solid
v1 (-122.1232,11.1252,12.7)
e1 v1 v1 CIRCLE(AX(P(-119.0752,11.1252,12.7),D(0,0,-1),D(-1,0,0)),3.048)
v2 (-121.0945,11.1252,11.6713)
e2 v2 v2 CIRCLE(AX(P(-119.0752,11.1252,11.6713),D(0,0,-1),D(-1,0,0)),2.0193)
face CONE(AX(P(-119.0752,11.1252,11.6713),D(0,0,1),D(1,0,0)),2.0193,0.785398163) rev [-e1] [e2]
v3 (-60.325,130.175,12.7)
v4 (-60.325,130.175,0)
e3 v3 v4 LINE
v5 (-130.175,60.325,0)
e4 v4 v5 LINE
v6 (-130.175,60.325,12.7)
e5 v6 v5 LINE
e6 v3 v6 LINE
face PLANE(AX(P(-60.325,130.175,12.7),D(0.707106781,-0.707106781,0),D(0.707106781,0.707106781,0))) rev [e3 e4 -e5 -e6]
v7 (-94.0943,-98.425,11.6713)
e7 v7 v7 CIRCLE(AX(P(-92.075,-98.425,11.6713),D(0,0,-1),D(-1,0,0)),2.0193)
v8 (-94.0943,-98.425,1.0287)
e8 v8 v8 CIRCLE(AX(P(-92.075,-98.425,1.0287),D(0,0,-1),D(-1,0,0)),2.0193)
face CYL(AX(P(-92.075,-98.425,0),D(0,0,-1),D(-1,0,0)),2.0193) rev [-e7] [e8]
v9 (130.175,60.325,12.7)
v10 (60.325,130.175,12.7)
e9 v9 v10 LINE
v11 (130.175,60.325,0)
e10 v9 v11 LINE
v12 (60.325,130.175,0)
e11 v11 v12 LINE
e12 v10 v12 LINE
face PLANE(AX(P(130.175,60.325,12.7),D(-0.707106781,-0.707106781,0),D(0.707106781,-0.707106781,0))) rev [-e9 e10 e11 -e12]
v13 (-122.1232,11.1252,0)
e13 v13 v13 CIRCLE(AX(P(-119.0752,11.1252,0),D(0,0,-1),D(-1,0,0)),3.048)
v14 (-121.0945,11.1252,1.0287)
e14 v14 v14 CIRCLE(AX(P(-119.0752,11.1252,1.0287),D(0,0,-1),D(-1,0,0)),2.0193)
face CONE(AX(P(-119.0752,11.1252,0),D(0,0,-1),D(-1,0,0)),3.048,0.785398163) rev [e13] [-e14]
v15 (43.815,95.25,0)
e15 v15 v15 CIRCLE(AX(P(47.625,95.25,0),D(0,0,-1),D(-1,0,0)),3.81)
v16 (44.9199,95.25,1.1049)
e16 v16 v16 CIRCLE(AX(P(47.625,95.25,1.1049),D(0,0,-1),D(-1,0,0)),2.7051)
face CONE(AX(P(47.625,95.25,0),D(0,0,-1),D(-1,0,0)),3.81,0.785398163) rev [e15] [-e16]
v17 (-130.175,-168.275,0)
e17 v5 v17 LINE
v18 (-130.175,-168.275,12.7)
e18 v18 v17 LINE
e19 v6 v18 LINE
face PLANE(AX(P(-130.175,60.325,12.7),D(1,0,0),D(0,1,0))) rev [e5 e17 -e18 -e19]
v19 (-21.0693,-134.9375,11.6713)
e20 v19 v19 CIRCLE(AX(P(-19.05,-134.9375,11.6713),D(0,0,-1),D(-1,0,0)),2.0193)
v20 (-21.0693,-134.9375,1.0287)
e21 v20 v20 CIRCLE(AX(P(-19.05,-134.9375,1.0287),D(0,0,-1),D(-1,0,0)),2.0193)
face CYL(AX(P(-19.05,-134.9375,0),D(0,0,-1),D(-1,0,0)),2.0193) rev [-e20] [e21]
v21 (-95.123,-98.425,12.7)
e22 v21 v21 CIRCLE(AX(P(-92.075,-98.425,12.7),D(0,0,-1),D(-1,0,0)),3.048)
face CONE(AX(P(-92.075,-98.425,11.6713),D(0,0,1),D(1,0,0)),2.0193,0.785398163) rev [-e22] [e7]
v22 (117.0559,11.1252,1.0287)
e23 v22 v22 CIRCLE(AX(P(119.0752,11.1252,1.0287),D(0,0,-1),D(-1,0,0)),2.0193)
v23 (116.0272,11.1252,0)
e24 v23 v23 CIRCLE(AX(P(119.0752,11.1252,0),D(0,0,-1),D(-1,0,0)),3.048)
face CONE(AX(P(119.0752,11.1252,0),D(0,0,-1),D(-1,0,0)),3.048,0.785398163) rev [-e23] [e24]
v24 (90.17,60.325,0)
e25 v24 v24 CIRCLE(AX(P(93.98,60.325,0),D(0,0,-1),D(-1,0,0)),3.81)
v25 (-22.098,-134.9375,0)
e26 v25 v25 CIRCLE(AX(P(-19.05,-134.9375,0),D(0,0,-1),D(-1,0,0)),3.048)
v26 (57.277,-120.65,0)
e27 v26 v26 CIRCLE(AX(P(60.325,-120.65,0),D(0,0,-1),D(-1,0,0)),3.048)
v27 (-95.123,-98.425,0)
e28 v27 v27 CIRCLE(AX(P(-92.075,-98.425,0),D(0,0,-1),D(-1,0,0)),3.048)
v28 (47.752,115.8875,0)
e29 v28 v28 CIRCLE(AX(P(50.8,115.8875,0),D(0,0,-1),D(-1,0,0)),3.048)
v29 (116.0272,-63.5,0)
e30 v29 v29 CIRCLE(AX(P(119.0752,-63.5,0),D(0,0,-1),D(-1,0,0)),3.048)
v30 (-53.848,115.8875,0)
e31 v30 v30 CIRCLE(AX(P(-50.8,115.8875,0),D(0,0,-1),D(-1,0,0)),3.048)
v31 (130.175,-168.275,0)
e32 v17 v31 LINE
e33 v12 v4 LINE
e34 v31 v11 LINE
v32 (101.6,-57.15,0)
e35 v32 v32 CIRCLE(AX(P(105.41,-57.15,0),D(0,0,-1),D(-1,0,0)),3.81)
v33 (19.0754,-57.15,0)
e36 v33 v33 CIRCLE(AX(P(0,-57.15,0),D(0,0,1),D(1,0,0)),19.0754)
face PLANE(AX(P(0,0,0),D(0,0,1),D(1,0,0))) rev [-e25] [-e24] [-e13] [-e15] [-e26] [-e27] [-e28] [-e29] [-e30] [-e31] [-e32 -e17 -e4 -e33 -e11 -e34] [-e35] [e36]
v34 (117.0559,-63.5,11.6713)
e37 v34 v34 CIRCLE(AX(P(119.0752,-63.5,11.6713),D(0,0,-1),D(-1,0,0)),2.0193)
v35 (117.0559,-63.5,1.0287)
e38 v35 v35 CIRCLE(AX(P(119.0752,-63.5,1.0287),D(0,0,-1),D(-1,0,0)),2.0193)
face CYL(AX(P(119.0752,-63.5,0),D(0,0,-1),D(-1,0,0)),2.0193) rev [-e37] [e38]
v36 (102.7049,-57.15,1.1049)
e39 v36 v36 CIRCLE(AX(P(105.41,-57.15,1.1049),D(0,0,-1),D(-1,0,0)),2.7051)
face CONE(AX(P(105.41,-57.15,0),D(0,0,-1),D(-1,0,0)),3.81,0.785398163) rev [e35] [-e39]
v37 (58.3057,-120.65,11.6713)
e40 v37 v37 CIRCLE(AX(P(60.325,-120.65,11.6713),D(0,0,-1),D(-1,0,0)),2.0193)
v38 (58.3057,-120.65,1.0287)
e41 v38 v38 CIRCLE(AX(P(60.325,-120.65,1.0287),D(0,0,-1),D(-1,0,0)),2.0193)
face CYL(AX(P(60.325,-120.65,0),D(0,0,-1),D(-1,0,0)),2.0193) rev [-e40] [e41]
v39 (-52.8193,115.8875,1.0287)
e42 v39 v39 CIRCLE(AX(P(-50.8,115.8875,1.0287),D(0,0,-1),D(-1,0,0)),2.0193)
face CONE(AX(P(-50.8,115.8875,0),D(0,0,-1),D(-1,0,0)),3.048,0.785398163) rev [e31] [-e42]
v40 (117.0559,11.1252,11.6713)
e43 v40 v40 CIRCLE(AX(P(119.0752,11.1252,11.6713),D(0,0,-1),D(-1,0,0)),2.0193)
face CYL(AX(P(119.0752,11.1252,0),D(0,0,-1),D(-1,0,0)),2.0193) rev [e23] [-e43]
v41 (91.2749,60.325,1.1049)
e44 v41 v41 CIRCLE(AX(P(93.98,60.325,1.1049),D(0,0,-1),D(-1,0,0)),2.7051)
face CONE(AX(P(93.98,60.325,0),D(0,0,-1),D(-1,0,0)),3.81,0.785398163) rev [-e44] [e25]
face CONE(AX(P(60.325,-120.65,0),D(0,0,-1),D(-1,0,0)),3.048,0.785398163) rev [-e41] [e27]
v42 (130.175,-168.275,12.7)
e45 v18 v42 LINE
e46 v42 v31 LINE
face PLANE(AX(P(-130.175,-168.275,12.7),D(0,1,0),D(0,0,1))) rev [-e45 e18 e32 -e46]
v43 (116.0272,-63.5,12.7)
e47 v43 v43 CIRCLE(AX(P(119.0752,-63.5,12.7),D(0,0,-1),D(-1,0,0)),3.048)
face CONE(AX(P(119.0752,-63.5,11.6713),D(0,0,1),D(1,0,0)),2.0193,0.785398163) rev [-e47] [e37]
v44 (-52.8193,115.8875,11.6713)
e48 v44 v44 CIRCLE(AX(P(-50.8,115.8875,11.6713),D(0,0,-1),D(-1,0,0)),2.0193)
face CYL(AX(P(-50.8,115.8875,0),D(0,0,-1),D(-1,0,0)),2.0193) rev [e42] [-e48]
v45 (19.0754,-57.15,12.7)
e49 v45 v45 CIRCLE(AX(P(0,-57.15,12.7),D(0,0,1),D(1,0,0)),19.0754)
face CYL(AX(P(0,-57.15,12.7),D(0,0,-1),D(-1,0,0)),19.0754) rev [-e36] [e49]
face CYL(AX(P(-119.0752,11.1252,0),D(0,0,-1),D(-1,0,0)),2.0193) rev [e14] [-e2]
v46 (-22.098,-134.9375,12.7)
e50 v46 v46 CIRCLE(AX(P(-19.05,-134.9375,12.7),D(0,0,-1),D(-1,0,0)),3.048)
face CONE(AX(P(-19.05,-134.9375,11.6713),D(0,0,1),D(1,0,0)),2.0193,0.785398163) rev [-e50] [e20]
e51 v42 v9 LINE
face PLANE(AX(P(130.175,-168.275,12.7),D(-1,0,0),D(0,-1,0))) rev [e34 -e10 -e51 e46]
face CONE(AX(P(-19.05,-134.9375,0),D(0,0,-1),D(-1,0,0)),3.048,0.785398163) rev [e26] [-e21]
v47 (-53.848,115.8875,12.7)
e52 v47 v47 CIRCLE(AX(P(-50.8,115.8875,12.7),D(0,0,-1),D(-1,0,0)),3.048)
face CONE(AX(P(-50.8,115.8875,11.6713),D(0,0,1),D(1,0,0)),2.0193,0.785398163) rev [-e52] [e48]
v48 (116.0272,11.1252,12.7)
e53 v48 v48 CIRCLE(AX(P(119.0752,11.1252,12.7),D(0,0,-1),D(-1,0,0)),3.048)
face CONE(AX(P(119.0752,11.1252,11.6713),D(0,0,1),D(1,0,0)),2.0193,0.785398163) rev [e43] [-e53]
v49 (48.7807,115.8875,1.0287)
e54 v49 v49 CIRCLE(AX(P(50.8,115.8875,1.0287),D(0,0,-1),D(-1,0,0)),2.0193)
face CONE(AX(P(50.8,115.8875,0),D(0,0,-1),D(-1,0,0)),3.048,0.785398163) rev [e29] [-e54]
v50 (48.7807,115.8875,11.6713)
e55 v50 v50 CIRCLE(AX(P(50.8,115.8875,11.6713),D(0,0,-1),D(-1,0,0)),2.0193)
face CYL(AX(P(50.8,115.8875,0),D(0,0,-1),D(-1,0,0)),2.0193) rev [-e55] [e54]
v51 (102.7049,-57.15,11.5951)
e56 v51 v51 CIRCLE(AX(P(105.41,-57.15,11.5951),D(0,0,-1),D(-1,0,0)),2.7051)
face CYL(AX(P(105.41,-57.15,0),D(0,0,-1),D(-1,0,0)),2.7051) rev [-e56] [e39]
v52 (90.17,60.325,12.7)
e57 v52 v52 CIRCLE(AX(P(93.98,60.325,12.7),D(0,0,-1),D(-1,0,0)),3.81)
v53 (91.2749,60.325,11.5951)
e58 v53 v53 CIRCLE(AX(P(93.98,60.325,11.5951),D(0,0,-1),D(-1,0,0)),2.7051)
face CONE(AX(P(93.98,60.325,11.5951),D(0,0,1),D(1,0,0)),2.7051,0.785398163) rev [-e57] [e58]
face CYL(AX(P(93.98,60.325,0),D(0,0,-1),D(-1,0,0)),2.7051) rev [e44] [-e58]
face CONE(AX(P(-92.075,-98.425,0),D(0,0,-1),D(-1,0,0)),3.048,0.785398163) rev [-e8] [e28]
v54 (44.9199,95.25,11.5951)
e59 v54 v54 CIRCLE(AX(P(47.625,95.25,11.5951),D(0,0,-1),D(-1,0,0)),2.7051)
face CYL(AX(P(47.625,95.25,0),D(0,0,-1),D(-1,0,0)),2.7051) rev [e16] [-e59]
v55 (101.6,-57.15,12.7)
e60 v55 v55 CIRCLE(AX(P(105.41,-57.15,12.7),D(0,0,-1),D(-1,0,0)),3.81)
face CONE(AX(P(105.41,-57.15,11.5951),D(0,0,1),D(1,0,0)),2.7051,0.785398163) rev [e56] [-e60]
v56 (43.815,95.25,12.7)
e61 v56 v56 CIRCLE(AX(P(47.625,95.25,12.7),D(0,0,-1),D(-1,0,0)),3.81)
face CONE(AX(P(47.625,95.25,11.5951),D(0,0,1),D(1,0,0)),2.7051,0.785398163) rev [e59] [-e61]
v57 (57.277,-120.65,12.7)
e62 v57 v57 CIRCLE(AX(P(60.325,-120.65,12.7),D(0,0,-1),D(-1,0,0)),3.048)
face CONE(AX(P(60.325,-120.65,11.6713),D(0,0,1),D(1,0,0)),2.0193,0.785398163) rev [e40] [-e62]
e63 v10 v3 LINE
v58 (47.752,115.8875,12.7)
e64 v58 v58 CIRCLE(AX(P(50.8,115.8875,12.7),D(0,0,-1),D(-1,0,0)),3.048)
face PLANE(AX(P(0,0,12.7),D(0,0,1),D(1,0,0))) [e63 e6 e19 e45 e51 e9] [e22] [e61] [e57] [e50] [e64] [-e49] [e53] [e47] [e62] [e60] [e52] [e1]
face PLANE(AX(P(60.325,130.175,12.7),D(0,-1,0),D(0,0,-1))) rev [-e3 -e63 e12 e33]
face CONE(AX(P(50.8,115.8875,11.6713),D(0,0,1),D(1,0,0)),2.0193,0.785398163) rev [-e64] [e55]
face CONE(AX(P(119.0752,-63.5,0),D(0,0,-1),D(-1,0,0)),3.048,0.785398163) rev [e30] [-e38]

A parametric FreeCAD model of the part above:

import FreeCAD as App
import Part
import Sketcher

V = App.Vector
Q = App.Units.Quantity


def add_polygon(sketch, points):
    """Adds a closed chain of lines whose ends are joined by coincident constraints."""
    first, n = sketch.GeometryCount, len(points)
    for a, b in zip(points, points[1:] + points[:1]):
        sketch.addGeometry(Part.LineSegment(App.Vector(*a, 0), App.Vector(*b, 0)), False)
    for i in range(n):
        sketch.addConstraint(Sketcher.Constraint("Coincident", first + i, 2, first + (i + 1) % n, 1))

doc = App.newDocument("Part")
params = doc.addObject("Spreadsheet::Sheet", "Params")
for row, (alias, value) in enumerate([
    ("sketch1_height", "9 in"),
    ("sketch1_width", "10.25 in"),
    ("sketch1_width2", "4.75 in"),
    ("pad1_length", "0.5 in"),
    ("sketch2_diameter", "1.502 in"),
    ("sketch3_height", "0.5 in"),
    ("sketch3_width", "0.12 in"),
    ("sketch3_height2", "0.419 in"),
    ("groove_angle", "360 deg"),
    ("linearpattern_pitch", "4 in"),
    ("linearpattern2_pitch", "199.58137 mm"),
    ("linearpattern3_pitch", "257.571569 mm"),
    ("linearpattern4_pitch", "260.369359 mm"),
    ("linearpattern5_pitch", "236.729201 mm"),
    ("linearpattern6_pitch", "125.046561 mm"),
    ("linearpattern7_pitch", "191.94108 mm"),
    ("sketch4_height", "0.5 in"),
    ("sketch4_width", "0.15 in"),
    ("sketch4_height2", "0.413 in"),
    ("groove2_angle", "360 deg"),
    ("linearpattern8_pitch", "118.029744 mm"),
    ("linearpattern9_pitch", "162.987319 mm"),
], start=1):
    params.set(f"A{row}", alias)
    params.set(f"B{row}", "=" + value)
    params.setAlias(f"B{row}", alias)

body = doc.addObject("PartDesign::Body", "Body")

sketch1 = body.newObject("Sketcher::SketchObject", "Sketch")
sketch1.AttachmentSupport = (doc.getObject("XY_Plane"), [""])
sketch1.MapMode = "FlatFace"
add_polygon(sketch1, [(-130.175, -168.275), (130.175, -168.275), (130.175, 60.325), (60.325, 130.175), (-60.325, 130.175), (-130.175, 60.325)])
sketch1.addConstraint([
    Sketcher.Constraint("Horizontal", 0),
    Sketcher.Constraint("Vertical", 1),
    Sketcher.Constraint("Horizontal", 3),
    Sketcher.Constraint("Vertical", 5),
    Sketcher.Constraint("Symmetric", 1, 2, 4, 2, -2),
    Sketcher.Constraint("Perpendicular", 2, 4),
    Sketcher.Constraint("Equal", 2, 4),
    Sketcher.Constraint("DistanceY", 1, 1, 1, 2, Q("9 in")),
    Sketcher.Constraint("DistanceX", 0, 1, 0, 2, Q("10.25 in")),
    Sketcher.Constraint("DistanceX", 3, 2, 3, 1, Q("4.75 in")),
    Sketcher.Constraint("DistanceY", 0, 2, -1, 1, Q("6.625 in")),
])
sketch1.setExpression("Constraints[13]", "Params.sketch1_height")
sketch1.setExpression("Constraints[14]", "Params.sketch1_width")
sketch1.setExpression("Constraints[15]", "Params.sketch1_width2")
pad1 = body.newObject("PartDesign::Pad", "Pad")
pad1.Profile = sketch1
pad1.setExpression("Length", "Params.pad1_length")

sketch2 = body.newObject("Sketcher::SketchObject", "Sketch001")
sketch2.AttachmentSupport = (doc.getObject("XY_Plane"), [""])
sketch2.MapMode = "FlatFace"
sketch2.addGeometry(Part.Circle(V(0, -57.15, 0), V(0, 0, 1), 19.0754), False)
sketch2.addConstraint([
    Sketcher.Constraint("PointOnObject", 0, 3, -2),
    Sketcher.Constraint("Diameter", 0, Q("1.502 in")),
    Sketcher.Constraint("DistanceY", 0, 3, -1, 1, Q("2.25 in")),
])
sketch2.setExpression("Constraints[1]", "Params.sketch2_diameter")
pocket1 = body.newObject("PartDesign::Pocket", "Pocket")
pocket1.Profile = sketch2
pocket1.Type = "ThroughAll"
pocket1.Reversed = True

sketch3 = body.newObject("Sketcher::SketchObject", "Sketch002")
sketch3.AttachmentSupport = (doc.getObject("YZ_Plane"), [""])
sketch3.MapMode = "FlatFace"
sketch3.AttachmentOffset = App.Placement(V(0, 0, 2 * 25.4), App.Rotation())
add_polygon(sketch3, [(115.8875, 12.7), (115.8875, 0), (118.9355, 0), (117.9068, 1.0287), (117.9068, 11.6713), (118.9355, 12.7)])
sketch3.addGeometry(Part.LineSegment(V(115.8875, 0, 0), V(115.8875, 12.7, 0)), True)
sketch3.addConstraint([
    Sketcher.Constraint("Vertical", 0),
    Sketcher.Constraint("Horizontal", 1),
    Sketcher.Constraint("Vertical", 3),
    Sketcher.Constraint("Horizontal", 5),
    Sketcher.Constraint("Vertical", 6),
    Sketcher.Constraint("Coincident", 6, 1, 0, 2),
    Sketcher.Constraint("PointOnObject", 0, 2, -1),
    Sketcher.Constraint("Perpendicular", 2, 4),
    Sketcher.Constraint("Horizontal", 4, 2, 6, 2),
    Sketcher.Constraint("Vertical", 1, 2, 4, 2),
    Sketcher.Constraint("Equal", 2, 4),
    Sketcher.Constraint("DistanceY", 0, 2, 0, 1, Q("0.5 in")),
    Sketcher.Constraint("DistanceX", 1, 1, 1, 2, Q("0.12 in")),
    Sketcher.Constraint("DistanceY", 3, 1, 3, 2, Q("0.419 in")),
    Sketcher.Constraint("DistanceX", -1, 1, 0, 2, Q("4.5625 in")),
])
sketch3.setExpression("Constraints[17]", "Params.sketch3_height")
sketch3.setExpression("Constraints[18]", "Params.sketch3_width")
sketch3.setExpression("Constraints[19]", "Params.sketch3_height2")
groove = body.newObject("PartDesign::Groove", "Groove")
groove.Profile = sketch3
groove.ReferenceAxis = (sketch3, ["Axis0"])
groove.setExpression("Angle", "Params.groove_angle")
doc.recompute()

linearpattern = body.newObject("PartDesign::LinearPattern", "LinearPattern")
linearpattern.Originals = [groove]
linearpattern.Direction = (doc.getObject("X_Axis"), [""])
linearpattern.Mode = "offset"
linearpattern.setExpression("Offset", "Params.linearpattern_pitch")
linearpattern.Occurrences = 2
linearpattern.Reversed = True
body.Tip = linearpattern
doc.recompute()

datumline = body.newObject("PartDesign::Line", "DatumLine")
datumline.Placement = App.Placement(V(0, 0, 0), App.Rotation(V(0, 0, 1), V(-0.851157602, -0.524910217, 0)))
linearpattern2 = body.newObject("PartDesign::LinearPattern", "LinearPattern001")
linearpattern2.Originals = [groove]
linearpattern2.Direction = (datumline, [""])
linearpattern2.Mode = "offset"
linearpattern2.setExpression("Offset", "Params.linearpattern2_pitch")
linearpattern2.Occurrences = 2
body.Tip = linearpattern2
doc.recompute()

datumline2 = body.newObject("PartDesign::Line", "DatumLine001")
datumline2.Placement = App.Placement(V(0, 0, 0), App.Rotation(V(0, 0, 1), V(-0.554700196, -0.832050294, 0)))
linearpattern3 = body.newObject("PartDesign::LinearPattern", "LinearPattern002")
linearpattern3.Originals = [groove]
linearpattern3.Direction = (datumline2, [""])
linearpattern3.Mode = "offset"
linearpattern3.setExpression("Offset", "Params.linearpattern3_pitch")
linearpattern3.Occurrences = 2
body.Tip = linearpattern3
doc.recompute()

datumline3 = body.newObject("PartDesign::Line", "DatumLine002")
datumline3.Placement = App.Placement(V(0, 0, 0), App.Rotation(V(0, 0, 1), V(-0.268272735, -0.963343002, 0)))
linearpattern4 = body.newObject("PartDesign::LinearPattern", "LinearPattern003")
linearpattern4.Originals = [groove]
linearpattern4.Direction = (datumline3, [""])
linearpattern4.Mode = "offset"
linearpattern4.setExpression("Offset", "Params.linearpattern4_pitch")
linearpattern4.Occurrences = 2
body.Tip = linearpattern4
doc.recompute()

datumline4 = body.newObject("PartDesign::Line", "DatumLine003")
datumline4.Placement = App.Placement(V(0, 0, 0), App.Rotation(V(0, 0, 1), V(0.040235847, -0.99919021, 0)))
linearpattern5 = body.newObject("PartDesign::LinearPattern", "LinearPattern004")
linearpattern5.Originals = [groove]
linearpattern5.Direction = (datumline4, [""])
linearpattern5.Mode = "offset"
linearpattern5.setExpression("Offset", "Params.linearpattern5_pitch")
linearpattern5.Occurrences = 2
body.Tip = linearpattern5
doc.recompute()

datumline5 = body.newObject("PartDesign::Line", "DatumLine004")
datumline5.Placement = App.Placement(V(0, 0, 0), App.Rotation(V(0, 0, 1), V(0.545998222, -0.837786334, 0)))
linearpattern6 = body.newObject("PartDesign::LinearPattern", "LinearPattern005")
linearpattern6.Originals = [groove]
linearpattern6.Direction = (datumline5, [""])
linearpattern6.Mode = "offset"
linearpattern6.setExpression("Offset", "Params.linearpattern6_pitch")
linearpattern6.Occurrences = 2
body.Tip = linearpattern6
doc.recompute()

datumline6 = body.newObject("PartDesign::Line", "DatumLine005")
datumline6.Placement = App.Placement(V(0, 0, 0), App.Rotation(V(0, 0, 1), V(0.355709159, -0.934596701, 0)))
linearpattern7 = body.newObject("PartDesign::LinearPattern", "LinearPattern006")
linearpattern7.Originals = [groove]
linearpattern7.Direction = (datumline6, [""])
linearpattern7.Mode = "offset"
linearpattern7.setExpression("Offset", "Params.linearpattern7_pitch")
linearpattern7.Occurrences = 2
body.Tip = linearpattern7

sketch4 = body.newObject("Sketcher::SketchObject", "Sketch003")
sketch4.AttachmentSupport = (doc.getObject("YZ_Plane"), [""])
sketch4.MapMode = "FlatFace"
sketch4.AttachmentOffset = App.Placement(V(0, 0, 4.15 * 25.4), App.Rotation())
add_polygon(sketch4, [(-57.15, 12.7), (-57.15, 0), (-53.34, 0), (-54.4449, 1.1049), (-54.4449, 11.5951), (-53.34, 12.7)])
sketch4.addGeometry(Part.LineSegment(V(-57.15, 0, 0), V(-57.15, 12.7, 0)), True)
sketch4.addConstraint([
    Sketcher.Constraint("Vertical", 0),
    Sketcher.Constraint("Horizontal", 1),
    Sketcher.Constraint("Vertical", 3),
    Sketcher.Constraint("Horizontal", 5),
    Sketcher.Constraint("Vertical", 6),
    Sketcher.Constraint("Coincident", 6, 1, 0, 2),
    Sketcher.Constraint("PointOnObject", 0, 2, -1),
    Sketcher.Constraint("Perpendicular", 2, 4),
    Sketcher.Constraint("Horizontal", 4, 2, 6, 2),
    Sketcher.Constraint("Vertical", 1, 2, 4, 2),
    Sketcher.Constraint("Equal", 2, 4),
    Sketcher.Constraint("DistanceY", 0, 2, 0, 1, Q("0.5 in")),
    Sketcher.Constraint("DistanceX", 1, 1, 1, 2, Q("0.15 in")),
    Sketcher.Constraint("DistanceX", 1, 2, -1, 1, Q("2.1 in")),
    Sketcher.Constraint("DistanceY", 3, 1, 3, 2, Q("0.413 in")),
])
sketch4.setExpression("Constraints[17]", "Params.sketch4_height")
sketch4.setExpression("Constraints[18]", "Params.sketch4_width")
sketch4.setExpression("Constraints[20]", "Params.sketch4_height2")
groove2 = body.newObject("PartDesign::Groove", "Groove001")
groove2.Profile = sketch4
groove2.ReferenceAxis = (sketch4, ["Axis0"])
groove2.setExpression("Angle", "Params.groove2_angle")
doc.recompute()

datumline7 = body.newObject("PartDesign::Line", "DatumLine006")
datumline7.Placement = App.Placement(V(0, 0, 0), App.Rotation(V(0, 0, 1), V(-0.096839996, 0.995299962, 0)))
linearpattern8 = body.newObject("PartDesign::LinearPattern", "LinearPattern007")
linearpattern8.Originals = [groove2]
linearpattern8.Direction = (datumline7, [""])
linearpattern8.Mode = "offset"
linearpattern8.setExpression("Offset", "Params.linearpattern8_pitch")
linearpattern8.Occurrences = 2
body.Tip = linearpattern8
doc.recompute()

datumline8 = body.newObject("PartDesign::Line", "DatumLine007")
datumline8.Placement = App.Placement(V(0, 0, 0), App.Rotation(V(0, 0, 1), V(-0.354536784, 0.935042068, 0)))
linearpattern9 = body.newObject("PartDesign::LinearPattern", "LinearPattern008")
linearpattern9.Originals = [groove2]
linearpattern9.Direction = (datumline8, [""])
linearpattern9.Mode = "offset"
linearpattern9.setExpression("Offset", "Params.linearpattern9_pitch")
linearpattern9.Occurrences = 2
body.Tip = linearpattern9

doc.recompute()
